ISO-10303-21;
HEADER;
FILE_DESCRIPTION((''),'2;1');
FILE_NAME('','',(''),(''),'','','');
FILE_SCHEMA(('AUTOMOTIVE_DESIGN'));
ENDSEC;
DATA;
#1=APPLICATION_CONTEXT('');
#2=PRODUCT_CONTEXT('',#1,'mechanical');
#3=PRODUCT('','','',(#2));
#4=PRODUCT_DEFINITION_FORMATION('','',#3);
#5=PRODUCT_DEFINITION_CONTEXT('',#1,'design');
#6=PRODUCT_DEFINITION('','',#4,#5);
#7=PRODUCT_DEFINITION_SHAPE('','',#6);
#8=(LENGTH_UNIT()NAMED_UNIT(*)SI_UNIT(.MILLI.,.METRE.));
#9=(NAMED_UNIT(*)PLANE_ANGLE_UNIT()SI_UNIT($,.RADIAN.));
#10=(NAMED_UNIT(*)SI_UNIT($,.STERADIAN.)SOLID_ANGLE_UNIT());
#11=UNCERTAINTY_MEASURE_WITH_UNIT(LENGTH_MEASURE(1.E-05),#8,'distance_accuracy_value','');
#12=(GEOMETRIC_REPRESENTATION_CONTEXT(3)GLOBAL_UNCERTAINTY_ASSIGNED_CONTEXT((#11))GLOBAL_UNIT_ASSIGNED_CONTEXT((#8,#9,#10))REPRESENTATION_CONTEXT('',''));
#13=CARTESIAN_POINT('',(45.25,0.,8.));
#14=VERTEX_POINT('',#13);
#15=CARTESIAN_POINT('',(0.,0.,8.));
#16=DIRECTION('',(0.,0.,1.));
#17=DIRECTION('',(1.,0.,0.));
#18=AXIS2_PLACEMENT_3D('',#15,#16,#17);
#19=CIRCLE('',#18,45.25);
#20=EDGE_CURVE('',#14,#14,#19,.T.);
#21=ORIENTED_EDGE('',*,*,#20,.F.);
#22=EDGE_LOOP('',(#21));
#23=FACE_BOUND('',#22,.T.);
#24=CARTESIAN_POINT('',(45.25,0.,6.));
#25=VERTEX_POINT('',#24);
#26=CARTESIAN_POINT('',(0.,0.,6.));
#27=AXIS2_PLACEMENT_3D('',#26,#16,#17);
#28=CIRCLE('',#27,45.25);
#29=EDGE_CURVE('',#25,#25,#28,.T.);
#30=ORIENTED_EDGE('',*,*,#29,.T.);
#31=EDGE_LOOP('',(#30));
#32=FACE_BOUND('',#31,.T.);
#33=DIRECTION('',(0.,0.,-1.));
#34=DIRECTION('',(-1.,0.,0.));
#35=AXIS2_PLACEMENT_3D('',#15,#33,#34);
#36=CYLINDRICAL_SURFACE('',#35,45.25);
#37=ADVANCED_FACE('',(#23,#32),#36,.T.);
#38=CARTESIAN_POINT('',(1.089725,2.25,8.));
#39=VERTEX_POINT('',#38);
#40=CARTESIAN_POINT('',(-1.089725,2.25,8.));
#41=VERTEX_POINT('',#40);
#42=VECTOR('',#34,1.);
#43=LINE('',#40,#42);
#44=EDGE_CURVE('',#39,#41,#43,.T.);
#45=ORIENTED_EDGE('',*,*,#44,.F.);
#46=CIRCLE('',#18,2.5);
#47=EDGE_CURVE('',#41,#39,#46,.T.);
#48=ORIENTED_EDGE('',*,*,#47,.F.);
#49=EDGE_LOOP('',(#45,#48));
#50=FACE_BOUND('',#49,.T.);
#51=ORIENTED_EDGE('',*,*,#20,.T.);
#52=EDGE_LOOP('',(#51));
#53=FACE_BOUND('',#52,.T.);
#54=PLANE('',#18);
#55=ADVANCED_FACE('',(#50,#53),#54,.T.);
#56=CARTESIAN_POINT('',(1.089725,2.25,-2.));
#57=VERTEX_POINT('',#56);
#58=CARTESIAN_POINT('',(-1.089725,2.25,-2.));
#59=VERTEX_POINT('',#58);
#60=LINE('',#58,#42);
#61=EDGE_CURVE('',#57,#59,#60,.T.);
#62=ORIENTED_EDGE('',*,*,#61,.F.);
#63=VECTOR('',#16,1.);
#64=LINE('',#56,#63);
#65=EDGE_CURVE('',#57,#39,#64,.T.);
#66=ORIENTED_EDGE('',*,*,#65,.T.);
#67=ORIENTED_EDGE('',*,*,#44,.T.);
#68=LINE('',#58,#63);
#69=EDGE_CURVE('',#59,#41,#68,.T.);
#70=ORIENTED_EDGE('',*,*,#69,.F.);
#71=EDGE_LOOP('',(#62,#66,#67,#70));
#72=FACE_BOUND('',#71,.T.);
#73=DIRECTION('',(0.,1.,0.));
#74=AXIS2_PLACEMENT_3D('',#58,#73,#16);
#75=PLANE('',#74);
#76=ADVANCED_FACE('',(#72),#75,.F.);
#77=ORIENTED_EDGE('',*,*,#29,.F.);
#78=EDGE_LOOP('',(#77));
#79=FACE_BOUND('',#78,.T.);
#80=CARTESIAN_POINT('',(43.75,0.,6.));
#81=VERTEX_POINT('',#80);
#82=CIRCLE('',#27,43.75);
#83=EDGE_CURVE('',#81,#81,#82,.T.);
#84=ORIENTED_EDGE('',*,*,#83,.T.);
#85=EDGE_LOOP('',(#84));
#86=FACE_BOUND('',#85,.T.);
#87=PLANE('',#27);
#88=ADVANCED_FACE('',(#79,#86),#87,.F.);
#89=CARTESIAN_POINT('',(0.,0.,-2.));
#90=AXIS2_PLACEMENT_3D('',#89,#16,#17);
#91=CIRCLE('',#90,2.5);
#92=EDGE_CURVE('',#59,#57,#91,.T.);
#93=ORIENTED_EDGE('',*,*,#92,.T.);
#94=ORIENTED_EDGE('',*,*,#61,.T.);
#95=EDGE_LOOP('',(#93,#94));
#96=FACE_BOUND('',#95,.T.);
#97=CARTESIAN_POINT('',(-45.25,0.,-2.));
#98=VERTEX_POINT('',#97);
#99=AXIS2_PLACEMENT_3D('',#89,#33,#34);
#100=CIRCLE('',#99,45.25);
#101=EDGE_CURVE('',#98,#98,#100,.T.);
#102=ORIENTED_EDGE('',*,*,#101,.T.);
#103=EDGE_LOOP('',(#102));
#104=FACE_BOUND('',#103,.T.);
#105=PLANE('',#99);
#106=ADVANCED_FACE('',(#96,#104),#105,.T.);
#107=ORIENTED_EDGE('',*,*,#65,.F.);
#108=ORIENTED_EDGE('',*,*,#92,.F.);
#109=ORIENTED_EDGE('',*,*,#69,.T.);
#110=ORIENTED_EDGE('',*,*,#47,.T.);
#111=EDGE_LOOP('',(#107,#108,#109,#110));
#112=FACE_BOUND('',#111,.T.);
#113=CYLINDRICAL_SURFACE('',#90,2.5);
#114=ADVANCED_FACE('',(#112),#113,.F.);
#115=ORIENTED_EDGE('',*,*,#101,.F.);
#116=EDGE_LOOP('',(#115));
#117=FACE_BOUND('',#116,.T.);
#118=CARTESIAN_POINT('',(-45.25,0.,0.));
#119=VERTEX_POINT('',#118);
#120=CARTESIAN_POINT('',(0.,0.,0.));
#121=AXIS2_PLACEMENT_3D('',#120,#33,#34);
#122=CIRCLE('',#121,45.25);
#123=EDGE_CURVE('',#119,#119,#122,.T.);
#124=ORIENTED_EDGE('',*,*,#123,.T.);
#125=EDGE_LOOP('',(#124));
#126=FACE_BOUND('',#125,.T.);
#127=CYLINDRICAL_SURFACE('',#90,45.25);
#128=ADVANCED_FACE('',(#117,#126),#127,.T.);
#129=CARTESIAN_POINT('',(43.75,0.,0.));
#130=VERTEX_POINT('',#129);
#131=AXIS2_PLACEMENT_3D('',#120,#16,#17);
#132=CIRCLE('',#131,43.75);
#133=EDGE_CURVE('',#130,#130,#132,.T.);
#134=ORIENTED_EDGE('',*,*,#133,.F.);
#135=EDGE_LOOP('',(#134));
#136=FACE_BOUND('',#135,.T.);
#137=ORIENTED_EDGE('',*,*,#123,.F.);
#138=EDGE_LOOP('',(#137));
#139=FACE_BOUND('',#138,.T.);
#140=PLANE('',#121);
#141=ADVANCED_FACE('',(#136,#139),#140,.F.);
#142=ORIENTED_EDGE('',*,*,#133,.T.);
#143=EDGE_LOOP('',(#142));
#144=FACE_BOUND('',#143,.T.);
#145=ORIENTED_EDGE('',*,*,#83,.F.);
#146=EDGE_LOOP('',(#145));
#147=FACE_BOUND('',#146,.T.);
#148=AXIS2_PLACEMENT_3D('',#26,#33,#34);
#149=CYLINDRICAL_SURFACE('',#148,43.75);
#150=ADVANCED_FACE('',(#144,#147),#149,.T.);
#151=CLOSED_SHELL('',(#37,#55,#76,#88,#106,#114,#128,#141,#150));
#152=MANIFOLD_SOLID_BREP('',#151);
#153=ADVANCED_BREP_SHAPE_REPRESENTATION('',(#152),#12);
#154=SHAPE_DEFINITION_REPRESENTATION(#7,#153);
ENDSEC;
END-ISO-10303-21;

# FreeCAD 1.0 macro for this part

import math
import FreeCAD as App
import Part
import Sketcher

V = App.Vector

doc = App.newDocument("Part")
body = doc.addObject("PartDesign::Body", "Body")

# Sketch on XY plane
sketch1 = body.newObject("Sketcher::SketchObject", "Sketch")
sketch1.AttachmentSupport = (doc.getObject("XY_Plane"), [""])
sketch1.MapMode = "FlatFace"
sketch1.addGeometry(Part.Circle(V(0, 0, 0), V(0, 0, 1), 44), False)
sketch1.addConstraint([
    Sketcher.Constraint("Coincident", 0, 3, -1, 1),
    Sketcher.Constraint("Diameter", 0, 87.5),
])
pad1 = body.newObject("PartDesign::Pad", "Pad")
pad1.Profile = sketch1
pad1.Length = 6

# Sketch on XY plane
sketch2 = body.newObject("Sketcher::SketchObject", "Sketch001")
sketch2.AttachmentSupport = (doc.getObject("XY_Plane"), [""])
sketch2.MapMode = "FlatFace"
sketch2.addGeometry(Part.Circle(V(0, 0, 0), V(0, 0, 1), 45), False)
sketch2.addConstraint([
    Sketcher.Constraint("Coincident", 0, 3, -1, 1),
    Sketcher.Constraint("Diameter", 0, 90.5),
])
pad2 = body.newObject("PartDesign::Pad", "Pad001")
pad2.Profile = sketch2
pad2.Length = 2
pad2.Reversed = True

# Sketch on XY plane
sketch3 = body.newObject("Sketcher::SketchObject", "Sketch002")
sketch3.AttachmentSupport = (doc.getObject("XY_Plane"), [""])
sketch3.MapMode = "FlatFace"
sketch3.AttachmentOffset = App.Placement(V(0, 0, 8), App.Rotation())
sketch3.addGeometry(Part.Circle(V(0, 0, 0), V(0, 0, 1), 45), False)
sketch3.addConstraint([
    Sketcher.Constraint("Coincident", 0, 3, -1, 1),
    Sketcher.Constraint("Diameter", 0, 90.5),
])
pad3 = body.newObject("PartDesign::Pad", "Pad002")
pad3.Profile = sketch3
pad3.Length = 2
pad3.Reversed = True

# Sketch on XY plane
sketch4 = body.newObject("Sketcher::SketchObject", "Sketch003")
sketch4.AttachmentSupport = (doc.getObject("XY_Plane"), [""])
sketch4.MapMode = "FlatFace"
sketch4.AttachmentOffset = App.Placement(V(0, 0, 8), App.Rotation())
sketch4.addGeometry([
    Part.LineSegment(V(1.1, 2.2, 0), V(-1.1, 2.2, 0)),
    Part.ArcOfCircle(Part.Circle(V(0, 0, 0), V(0, 0, 1), 2.5), math.radians(116), math.radians(424)),
], False)
sketch4.addConstraint([
    Sketcher.Constraint("Coincident", 0, 1, 1, 2),
    Sketcher.Constraint("Coincident", 1, 1, 0, 2),
    Sketcher.Constraint("Horizontal", 0),
    Sketcher.Constraint("Coincident", 1, 3, -1, 1),
    Sketcher.Constraint("Radius", 1, 2.5),
    Sketcher.Constraint("DistanceY", -1, 1, 0, 1, 2.25),
])
pocket1 = body.newObject("PartDesign::Pocket", "Pocket")
pocket1.Profile = sketch4
pocket1.Type = "ThroughAll"

doc.recompute()
